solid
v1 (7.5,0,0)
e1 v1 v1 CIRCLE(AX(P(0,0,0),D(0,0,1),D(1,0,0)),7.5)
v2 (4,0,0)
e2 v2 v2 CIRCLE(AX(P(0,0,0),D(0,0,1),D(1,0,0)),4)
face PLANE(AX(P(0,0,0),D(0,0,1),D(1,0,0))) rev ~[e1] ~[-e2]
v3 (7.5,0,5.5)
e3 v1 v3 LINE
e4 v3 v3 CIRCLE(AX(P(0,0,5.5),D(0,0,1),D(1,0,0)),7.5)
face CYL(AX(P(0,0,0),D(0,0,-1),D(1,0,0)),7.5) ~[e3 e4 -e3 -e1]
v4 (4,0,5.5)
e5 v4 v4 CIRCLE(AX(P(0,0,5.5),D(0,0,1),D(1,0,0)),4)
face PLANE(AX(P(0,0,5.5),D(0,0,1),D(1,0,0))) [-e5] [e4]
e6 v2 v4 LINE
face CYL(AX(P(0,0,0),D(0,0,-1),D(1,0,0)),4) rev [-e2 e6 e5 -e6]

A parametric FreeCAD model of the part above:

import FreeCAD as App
import Part
import Sketcher
from FreeCAD import Vector
Q = App.Units.Quantity

doc = App.newDocument("Part")
body = doc.addObject("PartDesign::Body", "Body")

# Sketch on XY plane
sketch1 = body.newObject("Sketcher::SketchObject", "Sketch")
sketch1.AttachmentSupport = (doc.getObject("XY_Plane"), [""])
sketch1.MapMode = "FlatFace"
sketch1.addGeometry(Part.Circle(Vector(0, 0, 0), Vector(0, 0, 1), 7.5), False)
sketch1.addGeometry(Part.Circle(Vector(0, 0, 0), Vector(0, 0, 1), 4), False)
sketch1.addConstraint(Sketcher.Constraint("Coincident", 0, 3, -1, 1))
sketch1.addConstraint(Sketcher.Constraint("Coincident", 1, 3, -1, 1))
sketch1.addConstraint(Sketcher.Constraint("Diameter", 0, Q("15 mm")))
sketch1.addConstraint(Sketcher.Constraint("Diameter", 1, Q("8 mm")))
pad1 = body.newObject("PartDesign::Pad", "Pad")
pad1.Profile = sketch1
pad1.Length = 5.5

doc.recompute()
